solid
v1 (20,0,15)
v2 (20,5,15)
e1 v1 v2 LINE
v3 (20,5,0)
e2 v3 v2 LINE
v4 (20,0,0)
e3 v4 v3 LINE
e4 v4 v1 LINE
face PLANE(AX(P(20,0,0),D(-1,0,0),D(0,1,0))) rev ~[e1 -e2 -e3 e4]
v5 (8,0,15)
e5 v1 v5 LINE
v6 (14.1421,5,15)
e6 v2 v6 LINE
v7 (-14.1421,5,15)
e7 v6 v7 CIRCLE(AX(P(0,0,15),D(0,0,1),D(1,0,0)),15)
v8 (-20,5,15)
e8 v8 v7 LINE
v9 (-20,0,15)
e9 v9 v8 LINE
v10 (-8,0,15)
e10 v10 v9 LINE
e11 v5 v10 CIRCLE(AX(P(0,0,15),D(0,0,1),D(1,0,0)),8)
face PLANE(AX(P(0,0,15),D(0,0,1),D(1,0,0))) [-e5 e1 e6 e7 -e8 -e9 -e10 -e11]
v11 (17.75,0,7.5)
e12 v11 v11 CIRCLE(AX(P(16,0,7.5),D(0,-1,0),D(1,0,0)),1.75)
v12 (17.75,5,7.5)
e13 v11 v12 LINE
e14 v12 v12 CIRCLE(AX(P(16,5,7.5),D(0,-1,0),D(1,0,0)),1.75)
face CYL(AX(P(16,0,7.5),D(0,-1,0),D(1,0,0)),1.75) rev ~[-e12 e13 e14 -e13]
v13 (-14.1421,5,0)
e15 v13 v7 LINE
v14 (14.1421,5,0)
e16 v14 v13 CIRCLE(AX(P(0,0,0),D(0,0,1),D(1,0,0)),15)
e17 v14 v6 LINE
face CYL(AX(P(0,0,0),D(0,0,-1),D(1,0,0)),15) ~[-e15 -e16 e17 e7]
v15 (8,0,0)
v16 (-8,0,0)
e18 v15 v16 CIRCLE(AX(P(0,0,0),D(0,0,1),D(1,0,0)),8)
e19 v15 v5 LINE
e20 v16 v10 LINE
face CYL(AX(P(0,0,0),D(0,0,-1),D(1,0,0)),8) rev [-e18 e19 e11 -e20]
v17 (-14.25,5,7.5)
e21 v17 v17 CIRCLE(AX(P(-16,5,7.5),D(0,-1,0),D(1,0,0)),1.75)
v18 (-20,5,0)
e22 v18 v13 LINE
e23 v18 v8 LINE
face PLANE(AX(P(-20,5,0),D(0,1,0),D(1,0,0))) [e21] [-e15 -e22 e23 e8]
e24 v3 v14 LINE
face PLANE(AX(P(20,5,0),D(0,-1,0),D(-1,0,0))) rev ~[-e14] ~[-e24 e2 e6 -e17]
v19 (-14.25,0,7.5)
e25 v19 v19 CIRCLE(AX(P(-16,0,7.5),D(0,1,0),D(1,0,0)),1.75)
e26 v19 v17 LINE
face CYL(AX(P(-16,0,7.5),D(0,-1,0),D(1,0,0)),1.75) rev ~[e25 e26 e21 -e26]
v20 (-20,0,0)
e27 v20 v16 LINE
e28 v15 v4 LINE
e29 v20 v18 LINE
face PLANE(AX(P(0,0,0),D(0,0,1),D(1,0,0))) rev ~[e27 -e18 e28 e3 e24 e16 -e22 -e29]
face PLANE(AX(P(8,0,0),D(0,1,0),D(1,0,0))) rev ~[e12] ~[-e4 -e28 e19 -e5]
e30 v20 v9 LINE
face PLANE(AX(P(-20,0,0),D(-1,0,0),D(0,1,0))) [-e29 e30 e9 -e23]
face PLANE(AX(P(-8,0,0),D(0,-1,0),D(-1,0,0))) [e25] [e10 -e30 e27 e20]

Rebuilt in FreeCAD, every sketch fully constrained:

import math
import FreeCAD as App
import Part
import Sketcher

V = App.Vector

doc = App.newDocument("Part")
body = doc.addObject("PartDesign::Body", "Body")

# Sketch on XY plane
sketch1 = doc.addObject("Sketcher::SketchObject", "Sketch")
body.addObject(sketch1)
sketch1.AttachmentSupport = (doc.XY_Plane, [""])
sketch1.MapMode = "FlatFace"
sketch1.addGeometry([
    Part.ArcOfCircle(Part.Circle(V(0, 0, 0), V(0, 0, 1), 8), math.radians(0), math.radians(180)),  # 0
    Part.LineSegment(V(8, 0, 0), V(20, 0, 0)),  # 1
    Part.LineSegment(V(20, 0, 0), V(20, 5, 0)),  # 2
    Part.LineSegment(V(20, 5, 0), V(14, 5, 0)),  # 3
    Part.ArcOfCircle(Part.Circle(V(0, 0, 0), V(0, 0, 1), 15), math.radians(19), math.radians(161)),  # 4
    Part.LineSegment(V(-14, 5, 0), V(-20, 5, 0)),  # 5
    Part.LineSegment(V(-20, 5, 0), V(-20, 0, 0)),  # 6
    Part.LineSegment(V(-20, 0, 0), V(-8, 0, 0)),  # 7
], False)
sketch1.addConstraint([
    Sketcher.Constraint("Coincident", 0, 1, 1, 1),
    Sketcher.Constraint("Coincident", 1, 2, 2, 1),
    Sketcher.Constraint("Coincident", 2, 2, 3, 1),
    Sketcher.Constraint("Coincident", 3, 2, 4, 1),
    Sketcher.Constraint("Coincident", 4, 2, 5, 1),
    Sketcher.Constraint("Coincident", 5, 2, 6, 1),
    Sketcher.Constraint("Coincident", 6, 2, 7, 1),
    Sketcher.Constraint("Coincident", 7, 2, 0, 2),
    Sketcher.Constraint("Horizontal", 1),
    Sketcher.Constraint("Vertical", 2),
    Sketcher.Constraint("Horizontal", 3),
    Sketcher.Constraint("Horizontal", 5),
    Sketcher.Constraint("Vertical", 6),
    Sketcher.Constraint("Horizontal", 7),
    Sketcher.Constraint("Coincident", 0, 3, -1, 1),
    Sketcher.Constraint("Coincident", 4, 3, -1, 1),
    Sketcher.Constraint("Symmetric", 1, 2, 6, 2, -1, 1),
    Sketcher.Constraint("PointOnObject", 0, 1, -1),
    Sketcher.Constraint("Horizontal", 3, 2, 4, 2),
    Sketcher.Constraint("Radius", 0, 8.0),
    Sketcher.Constraint("Radius", 4, 15.0),
    Sketcher.Constraint("DistanceY", 2, 1, 2, 2, 5.0),
    Sketcher.Constraint("DistanceX", 1, 1, 1, 2, 12.0),
])
pad1 = doc.addObject("PartDesign::Pad", "Pad")
body.addObject(pad1)
pad1.Profile = sketch1
pad1.Length = 15

# Sketch on XZ plane
sketch2 = doc.addObject("Sketcher::SketchObject", "Sketch001")
body.addObject(sketch2)
sketch2.AttachmentSupport = (doc.XZ_Plane, [""])
sketch2.MapMode = "FlatFace"
sketch2.addGeometry([
    Part.Circle(V(-16, 7.5, 0), V(0, 0, 1), 1.8),
    Part.Circle(V(16, 7.5, 0), V(0, 0, 1), 1.8),
], False)
sketch2.addConstraint([
    Sketcher.Constraint("Equal", 0, 1),
    Sketcher.Constraint("Symmetric", 0, 3, 1, 3, -2),
    Sketcher.Constraint("Diameter", 0, 3.5),
    Sketcher.Constraint("DistanceX", 0, 3, -1, 1, 16.0),
    Sketcher.Constraint("DistanceY", -1, 1, 0, 3, 7.5),
])
pocket1 = doc.addObject("PartDesign::Pocket", "Pocket")
body.addObject(pocket1)
pocket1.Profile = sketch2
pocket1.Type = "ThroughAll"

doc.recompute()
